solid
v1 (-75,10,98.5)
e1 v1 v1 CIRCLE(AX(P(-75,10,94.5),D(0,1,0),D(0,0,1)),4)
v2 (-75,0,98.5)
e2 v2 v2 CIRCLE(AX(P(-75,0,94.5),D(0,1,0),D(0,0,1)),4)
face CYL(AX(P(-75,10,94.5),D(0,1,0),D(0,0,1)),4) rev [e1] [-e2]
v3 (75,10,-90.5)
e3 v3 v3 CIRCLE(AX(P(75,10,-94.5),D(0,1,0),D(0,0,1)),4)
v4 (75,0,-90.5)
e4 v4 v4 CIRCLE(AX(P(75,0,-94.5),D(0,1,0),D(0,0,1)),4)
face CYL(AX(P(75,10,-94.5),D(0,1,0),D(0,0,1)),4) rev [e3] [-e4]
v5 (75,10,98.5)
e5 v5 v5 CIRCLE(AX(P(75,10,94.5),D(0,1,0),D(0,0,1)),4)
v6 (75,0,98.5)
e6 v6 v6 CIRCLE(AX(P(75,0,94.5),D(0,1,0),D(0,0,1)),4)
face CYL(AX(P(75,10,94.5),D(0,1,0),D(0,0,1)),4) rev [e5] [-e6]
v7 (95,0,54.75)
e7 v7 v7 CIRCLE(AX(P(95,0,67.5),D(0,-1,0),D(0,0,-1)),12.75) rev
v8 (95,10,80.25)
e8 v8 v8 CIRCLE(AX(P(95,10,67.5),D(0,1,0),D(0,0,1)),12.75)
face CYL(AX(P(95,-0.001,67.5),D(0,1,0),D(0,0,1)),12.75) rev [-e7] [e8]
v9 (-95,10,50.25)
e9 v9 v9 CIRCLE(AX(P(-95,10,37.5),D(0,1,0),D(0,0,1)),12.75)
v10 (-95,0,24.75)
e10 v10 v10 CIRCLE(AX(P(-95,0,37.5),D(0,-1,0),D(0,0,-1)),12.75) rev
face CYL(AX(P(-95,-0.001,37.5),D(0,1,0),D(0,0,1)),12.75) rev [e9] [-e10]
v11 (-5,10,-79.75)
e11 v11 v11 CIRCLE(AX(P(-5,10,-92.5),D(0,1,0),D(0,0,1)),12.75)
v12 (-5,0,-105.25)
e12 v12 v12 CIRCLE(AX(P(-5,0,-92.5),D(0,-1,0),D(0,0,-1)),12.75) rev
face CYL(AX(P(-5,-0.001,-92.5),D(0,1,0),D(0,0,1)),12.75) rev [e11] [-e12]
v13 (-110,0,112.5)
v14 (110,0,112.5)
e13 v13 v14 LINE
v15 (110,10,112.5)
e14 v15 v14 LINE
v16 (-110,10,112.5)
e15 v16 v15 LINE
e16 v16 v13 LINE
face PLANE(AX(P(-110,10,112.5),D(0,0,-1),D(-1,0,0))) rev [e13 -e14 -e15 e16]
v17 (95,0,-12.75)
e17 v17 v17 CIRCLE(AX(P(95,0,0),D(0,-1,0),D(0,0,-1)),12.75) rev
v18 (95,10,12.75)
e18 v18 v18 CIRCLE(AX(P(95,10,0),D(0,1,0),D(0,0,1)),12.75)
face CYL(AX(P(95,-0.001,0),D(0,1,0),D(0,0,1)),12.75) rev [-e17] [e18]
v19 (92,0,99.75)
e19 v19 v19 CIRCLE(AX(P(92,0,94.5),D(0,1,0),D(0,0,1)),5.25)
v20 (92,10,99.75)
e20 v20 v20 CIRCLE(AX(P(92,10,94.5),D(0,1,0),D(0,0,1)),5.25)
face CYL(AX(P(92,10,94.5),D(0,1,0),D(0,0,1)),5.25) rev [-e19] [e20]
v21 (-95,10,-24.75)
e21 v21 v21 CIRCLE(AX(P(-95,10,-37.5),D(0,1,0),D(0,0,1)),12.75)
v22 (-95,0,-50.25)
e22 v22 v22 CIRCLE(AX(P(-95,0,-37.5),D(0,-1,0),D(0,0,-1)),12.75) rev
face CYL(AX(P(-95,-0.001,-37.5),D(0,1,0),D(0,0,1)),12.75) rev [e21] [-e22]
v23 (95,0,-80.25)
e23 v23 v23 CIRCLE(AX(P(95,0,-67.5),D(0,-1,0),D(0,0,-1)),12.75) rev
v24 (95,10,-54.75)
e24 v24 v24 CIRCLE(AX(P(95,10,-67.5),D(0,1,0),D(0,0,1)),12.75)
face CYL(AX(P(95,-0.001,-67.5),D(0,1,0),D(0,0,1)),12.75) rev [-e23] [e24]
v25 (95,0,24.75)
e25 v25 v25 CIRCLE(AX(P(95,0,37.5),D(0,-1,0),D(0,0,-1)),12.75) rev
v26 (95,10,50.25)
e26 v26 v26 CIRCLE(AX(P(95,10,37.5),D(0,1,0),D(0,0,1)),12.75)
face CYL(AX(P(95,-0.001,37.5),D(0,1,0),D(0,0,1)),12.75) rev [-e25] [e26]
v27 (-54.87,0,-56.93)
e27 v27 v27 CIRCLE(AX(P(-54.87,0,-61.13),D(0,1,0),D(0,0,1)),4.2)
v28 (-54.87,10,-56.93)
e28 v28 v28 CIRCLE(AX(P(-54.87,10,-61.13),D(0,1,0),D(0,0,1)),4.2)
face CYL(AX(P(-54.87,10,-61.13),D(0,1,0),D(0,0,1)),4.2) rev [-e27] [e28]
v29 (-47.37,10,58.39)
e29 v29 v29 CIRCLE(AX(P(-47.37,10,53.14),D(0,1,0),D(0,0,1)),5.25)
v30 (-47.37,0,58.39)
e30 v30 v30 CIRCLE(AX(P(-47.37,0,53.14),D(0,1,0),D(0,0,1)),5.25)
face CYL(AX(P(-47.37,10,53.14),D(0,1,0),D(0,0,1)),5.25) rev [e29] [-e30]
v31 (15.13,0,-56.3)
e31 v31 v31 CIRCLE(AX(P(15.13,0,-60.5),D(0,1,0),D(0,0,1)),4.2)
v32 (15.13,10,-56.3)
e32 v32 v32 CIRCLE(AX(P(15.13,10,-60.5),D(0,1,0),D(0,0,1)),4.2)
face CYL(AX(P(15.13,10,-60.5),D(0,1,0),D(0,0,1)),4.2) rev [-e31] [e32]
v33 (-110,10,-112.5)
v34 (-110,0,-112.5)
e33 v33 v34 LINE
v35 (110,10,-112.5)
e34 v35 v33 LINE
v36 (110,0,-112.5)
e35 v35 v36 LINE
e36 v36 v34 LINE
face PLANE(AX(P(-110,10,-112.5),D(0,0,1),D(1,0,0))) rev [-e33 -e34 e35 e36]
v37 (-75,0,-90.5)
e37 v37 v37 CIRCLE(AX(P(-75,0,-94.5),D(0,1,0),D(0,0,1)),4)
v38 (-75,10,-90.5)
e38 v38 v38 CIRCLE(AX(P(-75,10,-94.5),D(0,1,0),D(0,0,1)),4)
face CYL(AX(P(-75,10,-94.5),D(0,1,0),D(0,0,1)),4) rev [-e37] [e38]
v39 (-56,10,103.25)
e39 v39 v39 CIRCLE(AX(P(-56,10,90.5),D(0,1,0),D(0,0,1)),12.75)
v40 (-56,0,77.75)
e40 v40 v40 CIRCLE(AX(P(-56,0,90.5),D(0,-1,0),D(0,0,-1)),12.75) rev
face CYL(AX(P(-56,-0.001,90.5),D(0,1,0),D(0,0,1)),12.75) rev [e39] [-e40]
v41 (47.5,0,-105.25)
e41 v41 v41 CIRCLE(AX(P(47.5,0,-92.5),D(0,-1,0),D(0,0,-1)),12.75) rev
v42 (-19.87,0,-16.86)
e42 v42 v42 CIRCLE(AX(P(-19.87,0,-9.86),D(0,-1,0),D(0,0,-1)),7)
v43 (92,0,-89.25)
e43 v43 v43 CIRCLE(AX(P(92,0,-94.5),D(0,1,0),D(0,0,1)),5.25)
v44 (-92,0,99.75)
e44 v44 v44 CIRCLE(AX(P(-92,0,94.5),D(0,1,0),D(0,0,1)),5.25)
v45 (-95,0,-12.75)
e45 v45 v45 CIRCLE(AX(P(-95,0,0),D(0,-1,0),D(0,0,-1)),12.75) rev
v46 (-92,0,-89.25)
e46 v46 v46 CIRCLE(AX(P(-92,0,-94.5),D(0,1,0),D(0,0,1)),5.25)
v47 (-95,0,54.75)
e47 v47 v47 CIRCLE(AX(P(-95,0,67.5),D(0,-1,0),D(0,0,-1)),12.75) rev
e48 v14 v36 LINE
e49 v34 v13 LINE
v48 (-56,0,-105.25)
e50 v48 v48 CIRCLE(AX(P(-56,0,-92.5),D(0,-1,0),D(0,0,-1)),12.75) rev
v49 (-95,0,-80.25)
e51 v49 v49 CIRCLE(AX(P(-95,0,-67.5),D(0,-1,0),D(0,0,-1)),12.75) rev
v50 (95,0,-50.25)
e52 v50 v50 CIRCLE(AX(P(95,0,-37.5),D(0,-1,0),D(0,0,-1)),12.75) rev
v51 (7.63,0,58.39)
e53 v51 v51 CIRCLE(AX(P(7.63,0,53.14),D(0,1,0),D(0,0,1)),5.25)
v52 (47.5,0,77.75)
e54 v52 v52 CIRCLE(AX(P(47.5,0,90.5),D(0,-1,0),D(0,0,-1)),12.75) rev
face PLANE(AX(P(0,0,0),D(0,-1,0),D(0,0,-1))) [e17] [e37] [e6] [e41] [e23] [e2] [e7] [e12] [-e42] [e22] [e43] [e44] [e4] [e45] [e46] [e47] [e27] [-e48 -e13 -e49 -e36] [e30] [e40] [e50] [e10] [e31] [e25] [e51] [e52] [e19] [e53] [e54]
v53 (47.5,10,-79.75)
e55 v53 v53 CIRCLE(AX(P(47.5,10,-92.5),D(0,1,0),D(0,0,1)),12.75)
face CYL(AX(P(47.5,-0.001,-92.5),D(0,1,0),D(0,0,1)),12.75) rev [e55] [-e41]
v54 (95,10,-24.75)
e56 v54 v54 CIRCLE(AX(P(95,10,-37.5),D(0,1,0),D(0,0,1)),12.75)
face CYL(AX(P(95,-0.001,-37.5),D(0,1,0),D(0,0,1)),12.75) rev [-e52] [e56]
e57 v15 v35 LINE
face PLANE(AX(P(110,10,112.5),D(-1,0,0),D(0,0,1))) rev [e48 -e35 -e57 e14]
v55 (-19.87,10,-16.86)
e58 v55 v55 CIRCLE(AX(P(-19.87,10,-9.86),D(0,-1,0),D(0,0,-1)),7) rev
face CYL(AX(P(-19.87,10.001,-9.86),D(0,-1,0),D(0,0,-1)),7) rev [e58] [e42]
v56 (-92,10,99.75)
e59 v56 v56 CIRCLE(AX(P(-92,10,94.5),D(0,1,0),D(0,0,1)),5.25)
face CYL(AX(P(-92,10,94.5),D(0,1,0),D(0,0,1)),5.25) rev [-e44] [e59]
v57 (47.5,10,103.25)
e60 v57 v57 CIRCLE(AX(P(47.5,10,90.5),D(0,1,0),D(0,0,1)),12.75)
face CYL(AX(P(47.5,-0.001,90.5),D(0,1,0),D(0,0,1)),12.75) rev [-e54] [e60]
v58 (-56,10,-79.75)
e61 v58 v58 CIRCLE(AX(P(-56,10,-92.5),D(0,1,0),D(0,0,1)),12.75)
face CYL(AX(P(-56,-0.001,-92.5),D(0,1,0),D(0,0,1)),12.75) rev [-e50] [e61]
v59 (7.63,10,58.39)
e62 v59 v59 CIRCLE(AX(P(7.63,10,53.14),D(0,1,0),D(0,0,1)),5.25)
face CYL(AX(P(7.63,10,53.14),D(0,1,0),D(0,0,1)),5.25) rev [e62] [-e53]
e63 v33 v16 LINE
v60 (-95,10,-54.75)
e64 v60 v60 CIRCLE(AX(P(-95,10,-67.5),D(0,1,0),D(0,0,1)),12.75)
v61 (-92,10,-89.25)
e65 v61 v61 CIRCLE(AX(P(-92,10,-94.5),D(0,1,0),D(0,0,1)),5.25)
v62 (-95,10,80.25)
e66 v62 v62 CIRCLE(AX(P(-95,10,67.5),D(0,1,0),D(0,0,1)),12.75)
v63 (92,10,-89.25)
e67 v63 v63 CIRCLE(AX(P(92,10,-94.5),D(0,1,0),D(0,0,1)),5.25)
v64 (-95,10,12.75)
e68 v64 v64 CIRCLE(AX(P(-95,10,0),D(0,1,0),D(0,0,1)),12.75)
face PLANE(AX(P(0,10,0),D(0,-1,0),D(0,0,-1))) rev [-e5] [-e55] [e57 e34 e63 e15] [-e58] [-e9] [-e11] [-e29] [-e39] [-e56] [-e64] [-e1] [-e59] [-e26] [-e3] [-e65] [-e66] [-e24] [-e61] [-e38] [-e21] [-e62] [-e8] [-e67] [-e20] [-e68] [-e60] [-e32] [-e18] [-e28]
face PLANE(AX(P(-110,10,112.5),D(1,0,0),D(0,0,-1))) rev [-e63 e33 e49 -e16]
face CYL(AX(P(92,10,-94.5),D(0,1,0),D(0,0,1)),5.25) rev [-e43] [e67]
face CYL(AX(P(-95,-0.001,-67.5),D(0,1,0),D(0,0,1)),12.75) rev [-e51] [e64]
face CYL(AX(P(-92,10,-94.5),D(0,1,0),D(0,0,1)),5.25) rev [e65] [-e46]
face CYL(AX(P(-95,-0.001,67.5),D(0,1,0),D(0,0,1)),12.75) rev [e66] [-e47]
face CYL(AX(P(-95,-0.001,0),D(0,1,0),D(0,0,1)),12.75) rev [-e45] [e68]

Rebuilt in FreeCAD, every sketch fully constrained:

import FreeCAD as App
import Part
import Sketcher

V = App.Vector
Q = App.Units.Quantity

doc = App.newDocument("Part")
body = doc.addObject("PartDesign::Body", "Body")

# Sketch on XZ plane
sketch1 = doc.addObject("Sketcher::SketchObject", "Sketch")
body.addObject(sketch1)
sketch1.AttachmentSupport = (doc.XZ_Plane, [""])
sketch1.MapMode = "FlatFace"
sketch1.addGeometry([
    Part.LineSegment(V(-110, -112.5, 0), V(-110, 112.5, 0)),
    Part.LineSegment(V(-110, 112.5, 0), V(110, 112.5, 0)),
    Part.LineSegment(V(110, 112.5, 0), V(110, -112.5, 0)),
    Part.LineSegment(V(110, -112.5, 0), V(-110, -112.5, 0)),
], False)
sketch1.addConstraint([
    Sketcher.Constraint("Coincident", 0, 2, 1, 1),
    Sketcher.Constraint("Coincident", 1, 2, 2, 1),
    Sketcher.Constraint("Coincident", 2, 2, 3, 1),
    Sketcher.Constraint("Coincident", 3, 2, 0, 1),
    Sketcher.Constraint("Vertical", 0),
    Sketcher.Constraint("Horizontal", 1),
    Sketcher.Constraint("Vertical", 2),
    Sketcher.Constraint("Horizontal", 3),
    Sketcher.Constraint("Symmetric", 0, 2, 2, 2, -1, 1),
    Sketcher.Constraint("DistanceX", 1, 1, 1, 2, Q("220 mm")),
    Sketcher.Constraint("DistanceY", 0, 1, 0, 2, Q("225 mm")),
])
pad1 = doc.addObject("PartDesign::Pad", "Pad")
body.addObject(pad1)
pad1.Profile = sketch1
pad1.Length = 10
pad1.Reversed = True

# Sketch on XZ plane
sketch2 = doc.addObject("Sketcher::SketchObject", "Sketch001")
body.addObject(sketch2)
sketch2.AttachmentSupport = (doc.XZ_Plane, [""])
sketch2.MapMode = "FlatFace"
sketch2.addGeometry(Part.Circle(V(-19.87, -9.86, 0), V(0, 0, 1), 7), False)
sketch2.addConstraint([
    Sketcher.Constraint("Diameter", 0, Q("14 mm")),
    Sketcher.Constraint("DistanceX", 0, 3, -1, 1, Q("19.87 mm")),
    Sketcher.Constraint("DistanceY", 0, 3, -1, 1, Q("9.86 mm")),
])
pocket1 = doc.addObject("PartDesign::Pocket", "Pocket")
body.addObject(pocket1)
pocket1.Profile = sketch2
pocket1.Type = "UpToFirst"

# Sketch on XZ plane
sketch3 = doc.addObject("Sketcher::SketchObject", "Sketch002")
body.addObject(sketch3)
sketch3.AttachmentSupport = (doc.XZ_Plane, [""])
sketch3.MapMode = "FlatFace"
sketch3.AttachmentOffset = App.Placement(V(0, 0, -10), App.Rotation())
sketch3.addGeometry([
    Part.Circle(V(75, 94.5, 0), V(0, 0, 1), 4),
    Part.Circle(V(-75, 94.5, 0), V(0, 0, 1), 4),
    Part.Circle(V(75, -94.5, 0), V(0, 0, 1), 4),
    Part.Circle(V(-75, -94.5, 0), V(0, 0, 1), 4),
], False)
sketch3.addConstraint([
    Sketcher.Constraint("Equal", 0, 1),
    Sketcher.Constraint("Equal", 1, 2),
    Sketcher.Constraint("Equal", 2, 3),
    Sketcher.Constraint("Symmetric", 1, 3, 2, 3, -1, 1),
    Sketcher.Constraint("Symmetric", 0, 3, 3, 3, -1, 1),
    Sketcher.Constraint("Symmetric", 0, 3, 1, 3, -2),
    Sketcher.Constraint("Diameter", 0, Q("8 mm")),
    Sketcher.Constraint("DistanceX", -1, 1, 0, 3, Q("75 mm")),
    Sketcher.Constraint("DistanceY", 2, 3, 0, 3, Q("189 mm")),
])
doc.recompute()
hole = doc.addObject("PartDesign::Hole", "Hole")
body.addObject(hole)
hole.Profile = sketch3
hole.ThreadType = "None"
hole.Diameter = 8
hole.DepthType = "ThroughAll"
hole.Reversed = True

# Sketch on XZ plane
sketch4 = doc.addObject("Sketcher::SketchObject", "Sketch003")
body.addObject(sketch4)
sketch4.AttachmentSupport = (doc.XZ_Plane, [""])
sketch4.MapMode = "FlatFace"
sketch4.AttachmentOffset = App.Placement(V(0, 0, -10), App.Rotation())
sketch4.addGeometry([
    Part.Circle(V(92, 94.5, 0), V(0, 0, 1), 5.25),
    Part.Circle(V(92, -94.5, 0), V(0, 0, 1), 5.25),
    Part.Circle(V(-92, -94.5, 0), V(0, 0, 1), 5.25),
    Part.Circle(V(-92, 94.5, 0), V(0, 0, 1), 5.25),
], False)
sketch4.addConstraint([
    Sketcher.Constraint("Equal", 0, 1),
    Sketcher.Constraint("Equal", 1, 2),
    Sketcher.Constraint("Equal", 2, 3),
    Sketcher.Constraint("Symmetric", 0, 3, 2, 3, -1, 1),
    Sketcher.Constraint("Symmetric", 1, 3, 3, 3, -1, 1),
    Sketcher.Constraint("Symmetric", 1, 3, 2, 3, -2),
    Sketcher.Constraint("Diameter", 0, Q("10.5 mm")),
    Sketcher.Constraint("DistanceX", -1, 1, 0, 3, Q("92 mm")),
    Sketcher.Constraint("DistanceY", 1, 3, 0, 3, Q("189 mm")),
])
doc.recompute()
hole2 = doc.addObject("PartDesign::Hole", "Hole001")
body.addObject(hole2)
hole2.Profile = sketch4
hole2.ThreadType = "None"
hole2.Diameter = 10.5
hole2.DepthType = "ThroughAll"
hole2.Reversed = True

# Sketch on XZ plane
sketch5 = doc.addObject("Sketcher::SketchObject", "Sketch004")
body.addObject(sketch5)
sketch5.AttachmentSupport = (doc.XZ_Plane, [""])
sketch5.MapMode = "FlatFace"
sketch5.AttachmentOffset = App.Placement(V(0, 0, -10), App.Rotation())
sketch5.addGeometry([
    Part.Circle(V(7.63, 53.14, 0), V(0, 0, 1), 5.25),
    Part.Circle(V(-47.37, 53.14, 0), V(0, 0, 1), 5.25),
], False)
sketch5.addConstraint([
    Sketcher.Constraint("Equal", 0, 1),
    Sketcher.Constraint("Horizontal", 0, 3, 1, 3),
    Sketcher.Constraint("Diameter", 0, Q("10.5 mm")),
    Sketcher.Constraint("DistanceX", 1, 3, 0, 3, Q("55 mm")),
    Sketcher.Constraint("DistanceX", -1, 1, 0, 3, Q("7.63 mm")),
    Sketcher.Constraint("DistanceY", -1, 1, 0, 3, Q("53.14 mm")),
])
doc.recompute()
hole3 = doc.addObject("PartDesign::Hole", "Hole002")
body.addObject(hole3)
hole3.Profile = sketch5
hole3.ThreadType = "None"
hole3.Diameter = 10.5
hole3.DepthType = "ThroughAll"
hole3.Reversed = True

# Sketch on XZ plane
sketch6 = doc.addObject("Sketcher::SketchObject", "Sketch005")
body.addObject(sketch6)
sketch6.AttachmentSupport = (doc.XZ_Plane, [""])
sketch6.MapMode = "FlatFace"
sketch6.AttachmentOffset = App.Placement(V(0, 0, -10), App.Rotation())
sketch6.addGeometry([
    Part.Circle(V(15.13, -60.5, 0), V(0, 0, 1), 4.2),
    Part.Circle(V(-54.87, -61.13, 0), V(0, 0, 1), 4.2),
], False)
sketch6.addConstraint([
    Sketcher.Constraint("Equal", 0, 1),
    Sketcher.Constraint("Diameter", 0, Q("8.4 mm")),
    Sketcher.Constraint("DistanceX", 1, 3, 0, 3, Q("70 mm")),
    Sketcher.Constraint("DistanceY", 0, 3, -1, 1, Q("60.5 mm")),
    Sketcher.Constraint("DistanceX", -1, 1, 0, 3, Q("15.13 mm")),
    Sketcher.Constraint("DistanceY", 1, 3, -1, 1, Q("61.13 mm")),
])
doc.recompute()
hole4 = doc.addObject("PartDesign::Hole", "Hole003")
body.addObject(hole4)
hole4.Profile = sketch6
hole4.ThreadType = "None"
hole4.Diameter = 8.4
hole4.DepthType = "ThroughAll"
hole4.Reversed = True

# Sketch on XZ plane
sketch7 = doc.addObject("Sketcher::SketchObject", "Sketch006")
body.addObject(sketch7)
sketch7.AttachmentSupport = (doc.XZ_Plane, [""])
sketch7.MapMode = "FlatFace"
sketch7.AttachmentOffset = App.Placement(V(0, 0, -10), App.Rotation())
sketch7.addGeometry(Part.Circle(V(-95, 0, 0), V(0, 0, 1), 12.75), False)
sketch7.addConstraint([
    Sketcher.Constraint("PointOnObject", 0, 3, -1),
    Sketcher.Constraint("Diameter", 0, Q("25.5 mm")),
    Sketcher.Constraint("DistanceX", 0, 3, -1, 1, Q("95 mm")),
])
pocket2 = doc.addObject("PartDesign::Pocket", "Pocket001")
body.addObject(pocket2)
pocket2.Profile = sketch7
pocket2.Type = "UpToFirst"
pocket2.Reversed = True

# Sketch on XZ plane
sketch8 = doc.addObject("Sketcher::SketchObject", "Sketch007")
body.addObject(sketch8)
sketch8.AttachmentSupport = (doc.XZ_Plane, [""])
sketch8.MapMode = "FlatFace"
sketch8.AttachmentOffset = App.Placement(V(0, 0, -10), App.Rotation())
sketch8.addGeometry(Part.Circle(V(-95, 37.5, 0), V(0, 0, 1), 12.75), False)
sketch8.addConstraint([
    Sketcher.Constraint("Diameter", 0, Q("25.5 mm")),
    Sketcher.Constraint("DistanceX", 0, 3, -1, 1, Q("95 mm")),
    Sketcher.Constraint("DistanceY", -1, 1, 0, 3, Q("37.5 mm")),
])
pocket3 = doc.addObject("PartDesign::Pocket", "Pocket002")
body.addObject(pocket3)
pocket3.Profile = sketch8
pocket3.Type = "UpToFirst"
pocket3.Reversed = True

# Sketch on XZ plane
sketch9 = doc.addObject("Sketcher::SketchObject", "Sketch008")
body.addObject(sketch9)
sketch9.AttachmentSupport = (doc.XZ_Plane, [""])
sketch9.MapMode = "FlatFace"
sketch9.AttachmentOffset = App.Placement(V(0, 0, -10), App.Rotation())
sketch9.addGeometry(Part.Circle(V(-95, 67.5, 0), V(0, 0, 1), 12.75), False)
sketch9.addConstraint([
    Sketcher.Constraint("Diameter", 0, Q("25.5 mm")),
    Sketcher.Constraint("DistanceX", 0, 3, -1, 1, Q("95 mm")),
    Sketcher.Constraint("DistanceY", -1, 1, 0, 3, Q("67.5 mm")),
])
pocket4 = doc.addObject("PartDesign::Pocket", "Pocket003")
body.addObject(pocket4)
pocket4.Profile = sketch9
pocket4.Type = "UpToFirst"
pocket4.Reversed = True

# Sketch on XZ plane
sketch10 = doc.addObject("Sketcher::SketchObject", "Sketch009")
body.addObject(sketch10)
sketch10.AttachmentSupport = (doc.XZ_Plane, [""])
sketch10.MapMode = "FlatFace"
sketch10.AttachmentOffset = App.Placement(V(0, 0, -10), App.Rotation())
sketch10.addGeometry(Part.Circle(V(-56, 90.5, 0), V(0, 0, 1), 12.75), False)
sketch10.addConstraint([
    Sketcher.Constraint("Diameter", 0, Q("25.5 mm")),
    Sketcher.Constraint("DistanceX", 0, 3, -1, 1, Q("56 mm")),
    Sketcher.Constraint("DistanceY", -1, 1, 0, 3, Q("90.5 mm")),
])
pocket5 = doc.addObject("PartDesign::Pocket", "Pocket004")
body.addObject(pocket5)
pocket5.Profile = sketch10
pocket5.Type = "UpToFirst"
pocket5.Reversed = True

# Sketch on XZ plane
sketch11 = doc.addObject("Sketcher::SketchObject", "Sketch010")
body.addObject(sketch11)
sketch11.AttachmentSupport = (doc.XZ_Plane, [""])
sketch11.MapMode = "FlatFace"
sketch11.AttachmentOffset = App.Placement(V(0, 0, -10), App.Rotation())
sketch11.addGeometry(Part.Circle(V(47.5, 90.5, 0), V(0, 0, 1), 12.75), False)
sketch11.addConstraint([
    Sketcher.Constraint("Diameter", 0, Q("25.5 mm")),
    Sketcher.Constraint("DistanceX", -1, 1, 0, 3, Q("47.5 mm")),
    Sketcher.Constraint("DistanceY", -1, 1, 0, 3, Q("90.5 mm")),
])
pocket6 = doc.addObject("PartDesign::Pocket", "Pocket005")
body.addObject(pocket6)
pocket6.Profile = sketch11
pocket6.Type = "UpToFirst"
pocket6.Reversed = True

# Sketch on XZ plane
sketch12 = doc.addObject("Sketcher::SketchObject", "Sketch011")
body.addObject(sketch12)
sketch12.AttachmentSupport = (doc.XZ_Plane, [""])
sketch12.MapMode = "FlatFace"
sketch12.AttachmentOffset = App.Placement(V(0, 0, -10), App.Rotation())
sketch12.addGeometry(Part.Circle(V(95, 67.5, 0), V(0, 0, 1), 12.75), False)
sketch12.addConstraint([
    Sketcher.Constraint("Diameter", 0, Q("25.5 mm")),
    Sketcher.Constraint("DistanceX", -1, 1, 0, 3, Q("95 mm")),
    Sketcher.Constraint("DistanceY", -1, 1, 0, 3, Q("67.5 mm")),
])
pocket7 = doc.addObject("PartDesign::Pocket", "Pocket006")
body.addObject(pocket7)
pocket7.Profile = sketch12
pocket7.Type = "UpToFirst"
pocket7.Reversed = True

# Sketch on XZ plane
sketch13 = doc.addObject("Sketcher::SketchObject", "Sketch012")
body.addObject(sketch13)
sketch13.AttachmentSupport = (doc.XZ_Plane, [""])
sketch13.MapMode = "FlatFace"
sketch13.AttachmentOffset = App.Placement(V(0, 0, -10), App.Rotation())
sketch13.addGeometry(Part.Circle(V(95, 37.5, 0), V(0, 0, 1), 12.75), False)
sketch13.addConstraint([
    Sketcher.Constraint("Diameter", 0, Q("25.5 mm")),
    Sketcher.Constraint("DistanceX", -1, 1, 0, 3, Q("95 mm")),
    Sketcher.Constraint("DistanceY", -1, 1, 0, 3, Q("37.5 mm")),
])
pocket8 = doc.addObject("PartDesign::Pocket", "Pocket007")
body.addObject(pocket8)
pocket8.Profile = sketch13
pocket8.Type = "UpToFirst"
pocket8.Reversed = True

# Sketch on XZ plane
sketch14 = doc.addObject("Sketcher::SketchObject", "Sketch013")
body.addObject(sketch14)
sketch14.AttachmentSupport = (doc.XZ_Plane, [""])
sketch14.MapMode = "FlatFace"
sketch14.AttachmentOffset = App.Placement(V(0, 0, -10), App.Rotation())
sketch14.addGeometry(Part.Circle(V(95, 0, 0), V(0, 0, 1), 12.75), False)
sketch14.addConstraint([
    Sketcher.Constraint("PointOnObject", 0, 3, -1),
    Sketcher.Constraint("Diameter", 0, Q("25.5 mm")),
    Sketcher.Constraint("DistanceX", -1, 1, 0, 3, Q("95 mm")),
])
pocket9 = doc.addObject("PartDesign::Pocket", "Pocket008")
body.addObject(pocket9)
pocket9.Profile = sketch14
pocket9.Type = "UpToFirst"
pocket9.Reversed = True

# Sketch on XZ plane
sketch15 = doc.addObject("Sketcher::SketchObject", "Sketch014")
body.addObject(sketch15)
sketch15.AttachmentSupport = (doc.XZ_Plane, [""])
sketch15.MapMode = "FlatFace"
sketch15.AttachmentOffset = App.Placement(V(0, 0, -10), App.Rotation())
sketch15.addGeometry(Part.Circle(V(-95, -37.5, 0), V(0, 0, 1), 12.75), False)
sketch15.addConstraint([
    Sketcher.Constraint("Diameter", 0, Q("25.5 mm")),
    Sketcher.Constraint("DistanceX", 0, 3, -1, 1, Q("95 mm")),
    Sketcher.Constraint("DistanceY", 0, 3, -1, 1, Q("37.5 mm")),
])
pocket10 = doc.addObject("PartDesign::Pocket", "Pocket009")
body.addObject(pocket10)
pocket10.Profile = sketch15
pocket10.Type = "UpToFirst"
pocket10.Reversed = True

# Sketch on XZ plane
sketch16 = doc.addObject("Sketcher::SketchObject", "Sketch015")
body.addObject(sketch16)
sketch16.AttachmentSupport = (doc.XZ_Plane, [""])
sketch16.MapMode = "FlatFace"
sketch16.AttachmentOffset = App.Placement(V(0, 0, -10), App.Rotation())
sketch16.addGeometry(Part.Circle(V(-95, -67.5, 0), V(0, 0, 1), 12.75), False)
sketch16.addConstraint([
    Sketcher.Constraint("Diameter", 0, Q("25.5 mm")),
    Sketcher.Constraint("DistanceX", 0, 3, -1, 1, Q("95 mm")),
    Sketcher.Constraint("DistanceY", 0, 3, -1, 1, Q("67.5 mm")),
])
pocket11 = doc.addObject("PartDesign::Pocket", "Pocket010")
body.addObject(pocket11)
pocket11.Profile = sketch16
pocket11.Type = "UpToFirst"
pocket11.Reversed = True

# Sketch on XZ plane
sketch17 = doc.addObject("Sketcher::SketchObject", "Sketch016")
body.addObject(sketch17)
sketch17.AttachmentSupport = (doc.XZ_Plane, [""])
sketch17.MapMode = "FlatFace"
sketch17.AttachmentOffset = App.Placement(V(0, 0, -10), App.Rotation())
sketch17.addGeometry(Part.Circle(V(95, -37.5, 0), V(0, 0, 1), 12.75), False)
sketch17.addConstraint([
    Sketcher.Constraint("Diameter", 0, Q("25.5 mm")),
    Sketcher.Constraint("DistanceX", -1, 1, 0, 3, Q("95 mm")),
    Sketcher.Constraint("DistanceY", 0, 3, -1, 1, Q("37.5 mm")),
])
pocket12 = doc.addObject("PartDesign::Pocket", "Pocket011")
body.addObject(pocket12)
pocket12.Profile = sketch17
pocket12.Type = "UpToFirst"
pocket12.Reversed = True

# Sketch on XZ plane
sketch18 = doc.addObject("Sketcher::SketchObject", "Sketch017")
body.addObject(sketch18)
sketch18.AttachmentSupport = (doc.XZ_Plane, [""])
sketch18.MapMode = "FlatFace"
sketch18.AttachmentOffset = App.Placement(V(0, 0, -10), App.Rotation())
sketch18.addGeometry(Part.Circle(V(95, -67.5, 0), V(0, 0, 1), 12.75), False)
sketch18.addConstraint([
    Sketcher.Constraint("Diameter", 0, Q("25.5 mm")),
    Sketcher.Constraint("DistanceX", -1, 1, 0, 3, Q("95 mm")),
    Sketcher.Constraint("DistanceY", 0, 3, -1, 1, Q("67.5 mm")),
])
pocket13 = doc.addObject("PartDesign::Pocket", "Pocket012")
body.addObject(pocket13)
pocket13.Profile = sketch18
pocket13.Type = "UpToFirst"
pocket13.Reversed = True

# Sketch on XZ plane
sketch19 = doc.addObject("Sketcher::SketchObject", "Sketch018")
body.addObject(sketch19)
sketch19.AttachmentSupport = (doc.XZ_Plane, [""])
sketch19.MapMode = "FlatFace"
sketch19.AttachmentOffset = App.Placement(V(0, 0, -10), App.Rotation())
sketch19.addGeometry(Part.Circle(V(47.5, -92.5, 0), V(0, 0, 1), 12.75), False)
sketch19.addConstraint([
    Sketcher.Constraint("Diameter", 0, Q("25.5 mm")),
    Sketcher.Constraint("DistanceX", -1, 1, 0, 3, Q("47.5 mm")),
    Sketcher.Constraint("DistanceY", 0, 3, -1, 1, Q("92.5 mm")),
])
pocket14 = doc.addObject("PartDesign::Pocket", "Pocket013")
body.addObject(pocket14)
pocket14.Profile = sketch19
pocket14.Type = "UpToFirst"
pocket14.Reversed = True

# Sketch on XZ plane
sketch20 = doc.addObject("Sketcher::SketchObject", "Sketch019")
body.addObject(sketch20)
sketch20.AttachmentSupport = (doc.XZ_Plane, [""])
sketch20.MapMode = "FlatFace"
sketch20.AttachmentOffset = App.Placement(V(0, 0, -10), App.Rotation())
sketch20.addGeometry(Part.Circle(V(-5, -92.5, 0), V(0, 0, 1), 12.75), False)
sketch20.addConstraint([
    Sketcher.Constraint("Diameter", 0, Q("25.5 mm")),
    Sketcher.Constraint("DistanceX", 0, 3, -1, 1, Q("5 mm")),
    Sketcher.Constraint("DistanceY", 0, 3, -1, 1, Q("92.5 mm")),
])
pocket15 = doc.addObject("PartDesign::Pocket", "Pocket014")
body.addObject(pocket15)
pocket15.Profile = sketch20
pocket15.Type = "UpToFirst"
pocket15.Reversed = True

# Sketch on XZ plane
sketch21 = doc.addObject("Sketcher::SketchObject", "Sketch020")
body.addObject(sketch21)
sketch21.AttachmentSupport = (doc.XZ_Plane, [""])
sketch21.MapMode = "FlatFace"
sketch21.AttachmentOffset = App.Placement(V(0, 0, -10), App.Rotation())
sketch21.addGeometry(Part.Circle(V(-56, -92.5, 0), V(0, 0, 1), 12.75), False)
sketch21.addConstraint([
    Sketcher.Constraint("Diameter", 0, Q("25.5 mm")),
    Sketcher.Constraint("DistanceX", 0, 3, -1, 1, Q("56 mm")),
    Sketcher.Constraint("DistanceY", 0, 3, -1, 1, Q("92.5 mm")),
])
pocket16 = doc.addObject("PartDesign::Pocket", "Pocket015")
body.addObject(pocket16)
pocket16.Profile = sketch21
pocket16.Type = "UpToFirst"
pocket16.Reversed = True

doc.recompute()
